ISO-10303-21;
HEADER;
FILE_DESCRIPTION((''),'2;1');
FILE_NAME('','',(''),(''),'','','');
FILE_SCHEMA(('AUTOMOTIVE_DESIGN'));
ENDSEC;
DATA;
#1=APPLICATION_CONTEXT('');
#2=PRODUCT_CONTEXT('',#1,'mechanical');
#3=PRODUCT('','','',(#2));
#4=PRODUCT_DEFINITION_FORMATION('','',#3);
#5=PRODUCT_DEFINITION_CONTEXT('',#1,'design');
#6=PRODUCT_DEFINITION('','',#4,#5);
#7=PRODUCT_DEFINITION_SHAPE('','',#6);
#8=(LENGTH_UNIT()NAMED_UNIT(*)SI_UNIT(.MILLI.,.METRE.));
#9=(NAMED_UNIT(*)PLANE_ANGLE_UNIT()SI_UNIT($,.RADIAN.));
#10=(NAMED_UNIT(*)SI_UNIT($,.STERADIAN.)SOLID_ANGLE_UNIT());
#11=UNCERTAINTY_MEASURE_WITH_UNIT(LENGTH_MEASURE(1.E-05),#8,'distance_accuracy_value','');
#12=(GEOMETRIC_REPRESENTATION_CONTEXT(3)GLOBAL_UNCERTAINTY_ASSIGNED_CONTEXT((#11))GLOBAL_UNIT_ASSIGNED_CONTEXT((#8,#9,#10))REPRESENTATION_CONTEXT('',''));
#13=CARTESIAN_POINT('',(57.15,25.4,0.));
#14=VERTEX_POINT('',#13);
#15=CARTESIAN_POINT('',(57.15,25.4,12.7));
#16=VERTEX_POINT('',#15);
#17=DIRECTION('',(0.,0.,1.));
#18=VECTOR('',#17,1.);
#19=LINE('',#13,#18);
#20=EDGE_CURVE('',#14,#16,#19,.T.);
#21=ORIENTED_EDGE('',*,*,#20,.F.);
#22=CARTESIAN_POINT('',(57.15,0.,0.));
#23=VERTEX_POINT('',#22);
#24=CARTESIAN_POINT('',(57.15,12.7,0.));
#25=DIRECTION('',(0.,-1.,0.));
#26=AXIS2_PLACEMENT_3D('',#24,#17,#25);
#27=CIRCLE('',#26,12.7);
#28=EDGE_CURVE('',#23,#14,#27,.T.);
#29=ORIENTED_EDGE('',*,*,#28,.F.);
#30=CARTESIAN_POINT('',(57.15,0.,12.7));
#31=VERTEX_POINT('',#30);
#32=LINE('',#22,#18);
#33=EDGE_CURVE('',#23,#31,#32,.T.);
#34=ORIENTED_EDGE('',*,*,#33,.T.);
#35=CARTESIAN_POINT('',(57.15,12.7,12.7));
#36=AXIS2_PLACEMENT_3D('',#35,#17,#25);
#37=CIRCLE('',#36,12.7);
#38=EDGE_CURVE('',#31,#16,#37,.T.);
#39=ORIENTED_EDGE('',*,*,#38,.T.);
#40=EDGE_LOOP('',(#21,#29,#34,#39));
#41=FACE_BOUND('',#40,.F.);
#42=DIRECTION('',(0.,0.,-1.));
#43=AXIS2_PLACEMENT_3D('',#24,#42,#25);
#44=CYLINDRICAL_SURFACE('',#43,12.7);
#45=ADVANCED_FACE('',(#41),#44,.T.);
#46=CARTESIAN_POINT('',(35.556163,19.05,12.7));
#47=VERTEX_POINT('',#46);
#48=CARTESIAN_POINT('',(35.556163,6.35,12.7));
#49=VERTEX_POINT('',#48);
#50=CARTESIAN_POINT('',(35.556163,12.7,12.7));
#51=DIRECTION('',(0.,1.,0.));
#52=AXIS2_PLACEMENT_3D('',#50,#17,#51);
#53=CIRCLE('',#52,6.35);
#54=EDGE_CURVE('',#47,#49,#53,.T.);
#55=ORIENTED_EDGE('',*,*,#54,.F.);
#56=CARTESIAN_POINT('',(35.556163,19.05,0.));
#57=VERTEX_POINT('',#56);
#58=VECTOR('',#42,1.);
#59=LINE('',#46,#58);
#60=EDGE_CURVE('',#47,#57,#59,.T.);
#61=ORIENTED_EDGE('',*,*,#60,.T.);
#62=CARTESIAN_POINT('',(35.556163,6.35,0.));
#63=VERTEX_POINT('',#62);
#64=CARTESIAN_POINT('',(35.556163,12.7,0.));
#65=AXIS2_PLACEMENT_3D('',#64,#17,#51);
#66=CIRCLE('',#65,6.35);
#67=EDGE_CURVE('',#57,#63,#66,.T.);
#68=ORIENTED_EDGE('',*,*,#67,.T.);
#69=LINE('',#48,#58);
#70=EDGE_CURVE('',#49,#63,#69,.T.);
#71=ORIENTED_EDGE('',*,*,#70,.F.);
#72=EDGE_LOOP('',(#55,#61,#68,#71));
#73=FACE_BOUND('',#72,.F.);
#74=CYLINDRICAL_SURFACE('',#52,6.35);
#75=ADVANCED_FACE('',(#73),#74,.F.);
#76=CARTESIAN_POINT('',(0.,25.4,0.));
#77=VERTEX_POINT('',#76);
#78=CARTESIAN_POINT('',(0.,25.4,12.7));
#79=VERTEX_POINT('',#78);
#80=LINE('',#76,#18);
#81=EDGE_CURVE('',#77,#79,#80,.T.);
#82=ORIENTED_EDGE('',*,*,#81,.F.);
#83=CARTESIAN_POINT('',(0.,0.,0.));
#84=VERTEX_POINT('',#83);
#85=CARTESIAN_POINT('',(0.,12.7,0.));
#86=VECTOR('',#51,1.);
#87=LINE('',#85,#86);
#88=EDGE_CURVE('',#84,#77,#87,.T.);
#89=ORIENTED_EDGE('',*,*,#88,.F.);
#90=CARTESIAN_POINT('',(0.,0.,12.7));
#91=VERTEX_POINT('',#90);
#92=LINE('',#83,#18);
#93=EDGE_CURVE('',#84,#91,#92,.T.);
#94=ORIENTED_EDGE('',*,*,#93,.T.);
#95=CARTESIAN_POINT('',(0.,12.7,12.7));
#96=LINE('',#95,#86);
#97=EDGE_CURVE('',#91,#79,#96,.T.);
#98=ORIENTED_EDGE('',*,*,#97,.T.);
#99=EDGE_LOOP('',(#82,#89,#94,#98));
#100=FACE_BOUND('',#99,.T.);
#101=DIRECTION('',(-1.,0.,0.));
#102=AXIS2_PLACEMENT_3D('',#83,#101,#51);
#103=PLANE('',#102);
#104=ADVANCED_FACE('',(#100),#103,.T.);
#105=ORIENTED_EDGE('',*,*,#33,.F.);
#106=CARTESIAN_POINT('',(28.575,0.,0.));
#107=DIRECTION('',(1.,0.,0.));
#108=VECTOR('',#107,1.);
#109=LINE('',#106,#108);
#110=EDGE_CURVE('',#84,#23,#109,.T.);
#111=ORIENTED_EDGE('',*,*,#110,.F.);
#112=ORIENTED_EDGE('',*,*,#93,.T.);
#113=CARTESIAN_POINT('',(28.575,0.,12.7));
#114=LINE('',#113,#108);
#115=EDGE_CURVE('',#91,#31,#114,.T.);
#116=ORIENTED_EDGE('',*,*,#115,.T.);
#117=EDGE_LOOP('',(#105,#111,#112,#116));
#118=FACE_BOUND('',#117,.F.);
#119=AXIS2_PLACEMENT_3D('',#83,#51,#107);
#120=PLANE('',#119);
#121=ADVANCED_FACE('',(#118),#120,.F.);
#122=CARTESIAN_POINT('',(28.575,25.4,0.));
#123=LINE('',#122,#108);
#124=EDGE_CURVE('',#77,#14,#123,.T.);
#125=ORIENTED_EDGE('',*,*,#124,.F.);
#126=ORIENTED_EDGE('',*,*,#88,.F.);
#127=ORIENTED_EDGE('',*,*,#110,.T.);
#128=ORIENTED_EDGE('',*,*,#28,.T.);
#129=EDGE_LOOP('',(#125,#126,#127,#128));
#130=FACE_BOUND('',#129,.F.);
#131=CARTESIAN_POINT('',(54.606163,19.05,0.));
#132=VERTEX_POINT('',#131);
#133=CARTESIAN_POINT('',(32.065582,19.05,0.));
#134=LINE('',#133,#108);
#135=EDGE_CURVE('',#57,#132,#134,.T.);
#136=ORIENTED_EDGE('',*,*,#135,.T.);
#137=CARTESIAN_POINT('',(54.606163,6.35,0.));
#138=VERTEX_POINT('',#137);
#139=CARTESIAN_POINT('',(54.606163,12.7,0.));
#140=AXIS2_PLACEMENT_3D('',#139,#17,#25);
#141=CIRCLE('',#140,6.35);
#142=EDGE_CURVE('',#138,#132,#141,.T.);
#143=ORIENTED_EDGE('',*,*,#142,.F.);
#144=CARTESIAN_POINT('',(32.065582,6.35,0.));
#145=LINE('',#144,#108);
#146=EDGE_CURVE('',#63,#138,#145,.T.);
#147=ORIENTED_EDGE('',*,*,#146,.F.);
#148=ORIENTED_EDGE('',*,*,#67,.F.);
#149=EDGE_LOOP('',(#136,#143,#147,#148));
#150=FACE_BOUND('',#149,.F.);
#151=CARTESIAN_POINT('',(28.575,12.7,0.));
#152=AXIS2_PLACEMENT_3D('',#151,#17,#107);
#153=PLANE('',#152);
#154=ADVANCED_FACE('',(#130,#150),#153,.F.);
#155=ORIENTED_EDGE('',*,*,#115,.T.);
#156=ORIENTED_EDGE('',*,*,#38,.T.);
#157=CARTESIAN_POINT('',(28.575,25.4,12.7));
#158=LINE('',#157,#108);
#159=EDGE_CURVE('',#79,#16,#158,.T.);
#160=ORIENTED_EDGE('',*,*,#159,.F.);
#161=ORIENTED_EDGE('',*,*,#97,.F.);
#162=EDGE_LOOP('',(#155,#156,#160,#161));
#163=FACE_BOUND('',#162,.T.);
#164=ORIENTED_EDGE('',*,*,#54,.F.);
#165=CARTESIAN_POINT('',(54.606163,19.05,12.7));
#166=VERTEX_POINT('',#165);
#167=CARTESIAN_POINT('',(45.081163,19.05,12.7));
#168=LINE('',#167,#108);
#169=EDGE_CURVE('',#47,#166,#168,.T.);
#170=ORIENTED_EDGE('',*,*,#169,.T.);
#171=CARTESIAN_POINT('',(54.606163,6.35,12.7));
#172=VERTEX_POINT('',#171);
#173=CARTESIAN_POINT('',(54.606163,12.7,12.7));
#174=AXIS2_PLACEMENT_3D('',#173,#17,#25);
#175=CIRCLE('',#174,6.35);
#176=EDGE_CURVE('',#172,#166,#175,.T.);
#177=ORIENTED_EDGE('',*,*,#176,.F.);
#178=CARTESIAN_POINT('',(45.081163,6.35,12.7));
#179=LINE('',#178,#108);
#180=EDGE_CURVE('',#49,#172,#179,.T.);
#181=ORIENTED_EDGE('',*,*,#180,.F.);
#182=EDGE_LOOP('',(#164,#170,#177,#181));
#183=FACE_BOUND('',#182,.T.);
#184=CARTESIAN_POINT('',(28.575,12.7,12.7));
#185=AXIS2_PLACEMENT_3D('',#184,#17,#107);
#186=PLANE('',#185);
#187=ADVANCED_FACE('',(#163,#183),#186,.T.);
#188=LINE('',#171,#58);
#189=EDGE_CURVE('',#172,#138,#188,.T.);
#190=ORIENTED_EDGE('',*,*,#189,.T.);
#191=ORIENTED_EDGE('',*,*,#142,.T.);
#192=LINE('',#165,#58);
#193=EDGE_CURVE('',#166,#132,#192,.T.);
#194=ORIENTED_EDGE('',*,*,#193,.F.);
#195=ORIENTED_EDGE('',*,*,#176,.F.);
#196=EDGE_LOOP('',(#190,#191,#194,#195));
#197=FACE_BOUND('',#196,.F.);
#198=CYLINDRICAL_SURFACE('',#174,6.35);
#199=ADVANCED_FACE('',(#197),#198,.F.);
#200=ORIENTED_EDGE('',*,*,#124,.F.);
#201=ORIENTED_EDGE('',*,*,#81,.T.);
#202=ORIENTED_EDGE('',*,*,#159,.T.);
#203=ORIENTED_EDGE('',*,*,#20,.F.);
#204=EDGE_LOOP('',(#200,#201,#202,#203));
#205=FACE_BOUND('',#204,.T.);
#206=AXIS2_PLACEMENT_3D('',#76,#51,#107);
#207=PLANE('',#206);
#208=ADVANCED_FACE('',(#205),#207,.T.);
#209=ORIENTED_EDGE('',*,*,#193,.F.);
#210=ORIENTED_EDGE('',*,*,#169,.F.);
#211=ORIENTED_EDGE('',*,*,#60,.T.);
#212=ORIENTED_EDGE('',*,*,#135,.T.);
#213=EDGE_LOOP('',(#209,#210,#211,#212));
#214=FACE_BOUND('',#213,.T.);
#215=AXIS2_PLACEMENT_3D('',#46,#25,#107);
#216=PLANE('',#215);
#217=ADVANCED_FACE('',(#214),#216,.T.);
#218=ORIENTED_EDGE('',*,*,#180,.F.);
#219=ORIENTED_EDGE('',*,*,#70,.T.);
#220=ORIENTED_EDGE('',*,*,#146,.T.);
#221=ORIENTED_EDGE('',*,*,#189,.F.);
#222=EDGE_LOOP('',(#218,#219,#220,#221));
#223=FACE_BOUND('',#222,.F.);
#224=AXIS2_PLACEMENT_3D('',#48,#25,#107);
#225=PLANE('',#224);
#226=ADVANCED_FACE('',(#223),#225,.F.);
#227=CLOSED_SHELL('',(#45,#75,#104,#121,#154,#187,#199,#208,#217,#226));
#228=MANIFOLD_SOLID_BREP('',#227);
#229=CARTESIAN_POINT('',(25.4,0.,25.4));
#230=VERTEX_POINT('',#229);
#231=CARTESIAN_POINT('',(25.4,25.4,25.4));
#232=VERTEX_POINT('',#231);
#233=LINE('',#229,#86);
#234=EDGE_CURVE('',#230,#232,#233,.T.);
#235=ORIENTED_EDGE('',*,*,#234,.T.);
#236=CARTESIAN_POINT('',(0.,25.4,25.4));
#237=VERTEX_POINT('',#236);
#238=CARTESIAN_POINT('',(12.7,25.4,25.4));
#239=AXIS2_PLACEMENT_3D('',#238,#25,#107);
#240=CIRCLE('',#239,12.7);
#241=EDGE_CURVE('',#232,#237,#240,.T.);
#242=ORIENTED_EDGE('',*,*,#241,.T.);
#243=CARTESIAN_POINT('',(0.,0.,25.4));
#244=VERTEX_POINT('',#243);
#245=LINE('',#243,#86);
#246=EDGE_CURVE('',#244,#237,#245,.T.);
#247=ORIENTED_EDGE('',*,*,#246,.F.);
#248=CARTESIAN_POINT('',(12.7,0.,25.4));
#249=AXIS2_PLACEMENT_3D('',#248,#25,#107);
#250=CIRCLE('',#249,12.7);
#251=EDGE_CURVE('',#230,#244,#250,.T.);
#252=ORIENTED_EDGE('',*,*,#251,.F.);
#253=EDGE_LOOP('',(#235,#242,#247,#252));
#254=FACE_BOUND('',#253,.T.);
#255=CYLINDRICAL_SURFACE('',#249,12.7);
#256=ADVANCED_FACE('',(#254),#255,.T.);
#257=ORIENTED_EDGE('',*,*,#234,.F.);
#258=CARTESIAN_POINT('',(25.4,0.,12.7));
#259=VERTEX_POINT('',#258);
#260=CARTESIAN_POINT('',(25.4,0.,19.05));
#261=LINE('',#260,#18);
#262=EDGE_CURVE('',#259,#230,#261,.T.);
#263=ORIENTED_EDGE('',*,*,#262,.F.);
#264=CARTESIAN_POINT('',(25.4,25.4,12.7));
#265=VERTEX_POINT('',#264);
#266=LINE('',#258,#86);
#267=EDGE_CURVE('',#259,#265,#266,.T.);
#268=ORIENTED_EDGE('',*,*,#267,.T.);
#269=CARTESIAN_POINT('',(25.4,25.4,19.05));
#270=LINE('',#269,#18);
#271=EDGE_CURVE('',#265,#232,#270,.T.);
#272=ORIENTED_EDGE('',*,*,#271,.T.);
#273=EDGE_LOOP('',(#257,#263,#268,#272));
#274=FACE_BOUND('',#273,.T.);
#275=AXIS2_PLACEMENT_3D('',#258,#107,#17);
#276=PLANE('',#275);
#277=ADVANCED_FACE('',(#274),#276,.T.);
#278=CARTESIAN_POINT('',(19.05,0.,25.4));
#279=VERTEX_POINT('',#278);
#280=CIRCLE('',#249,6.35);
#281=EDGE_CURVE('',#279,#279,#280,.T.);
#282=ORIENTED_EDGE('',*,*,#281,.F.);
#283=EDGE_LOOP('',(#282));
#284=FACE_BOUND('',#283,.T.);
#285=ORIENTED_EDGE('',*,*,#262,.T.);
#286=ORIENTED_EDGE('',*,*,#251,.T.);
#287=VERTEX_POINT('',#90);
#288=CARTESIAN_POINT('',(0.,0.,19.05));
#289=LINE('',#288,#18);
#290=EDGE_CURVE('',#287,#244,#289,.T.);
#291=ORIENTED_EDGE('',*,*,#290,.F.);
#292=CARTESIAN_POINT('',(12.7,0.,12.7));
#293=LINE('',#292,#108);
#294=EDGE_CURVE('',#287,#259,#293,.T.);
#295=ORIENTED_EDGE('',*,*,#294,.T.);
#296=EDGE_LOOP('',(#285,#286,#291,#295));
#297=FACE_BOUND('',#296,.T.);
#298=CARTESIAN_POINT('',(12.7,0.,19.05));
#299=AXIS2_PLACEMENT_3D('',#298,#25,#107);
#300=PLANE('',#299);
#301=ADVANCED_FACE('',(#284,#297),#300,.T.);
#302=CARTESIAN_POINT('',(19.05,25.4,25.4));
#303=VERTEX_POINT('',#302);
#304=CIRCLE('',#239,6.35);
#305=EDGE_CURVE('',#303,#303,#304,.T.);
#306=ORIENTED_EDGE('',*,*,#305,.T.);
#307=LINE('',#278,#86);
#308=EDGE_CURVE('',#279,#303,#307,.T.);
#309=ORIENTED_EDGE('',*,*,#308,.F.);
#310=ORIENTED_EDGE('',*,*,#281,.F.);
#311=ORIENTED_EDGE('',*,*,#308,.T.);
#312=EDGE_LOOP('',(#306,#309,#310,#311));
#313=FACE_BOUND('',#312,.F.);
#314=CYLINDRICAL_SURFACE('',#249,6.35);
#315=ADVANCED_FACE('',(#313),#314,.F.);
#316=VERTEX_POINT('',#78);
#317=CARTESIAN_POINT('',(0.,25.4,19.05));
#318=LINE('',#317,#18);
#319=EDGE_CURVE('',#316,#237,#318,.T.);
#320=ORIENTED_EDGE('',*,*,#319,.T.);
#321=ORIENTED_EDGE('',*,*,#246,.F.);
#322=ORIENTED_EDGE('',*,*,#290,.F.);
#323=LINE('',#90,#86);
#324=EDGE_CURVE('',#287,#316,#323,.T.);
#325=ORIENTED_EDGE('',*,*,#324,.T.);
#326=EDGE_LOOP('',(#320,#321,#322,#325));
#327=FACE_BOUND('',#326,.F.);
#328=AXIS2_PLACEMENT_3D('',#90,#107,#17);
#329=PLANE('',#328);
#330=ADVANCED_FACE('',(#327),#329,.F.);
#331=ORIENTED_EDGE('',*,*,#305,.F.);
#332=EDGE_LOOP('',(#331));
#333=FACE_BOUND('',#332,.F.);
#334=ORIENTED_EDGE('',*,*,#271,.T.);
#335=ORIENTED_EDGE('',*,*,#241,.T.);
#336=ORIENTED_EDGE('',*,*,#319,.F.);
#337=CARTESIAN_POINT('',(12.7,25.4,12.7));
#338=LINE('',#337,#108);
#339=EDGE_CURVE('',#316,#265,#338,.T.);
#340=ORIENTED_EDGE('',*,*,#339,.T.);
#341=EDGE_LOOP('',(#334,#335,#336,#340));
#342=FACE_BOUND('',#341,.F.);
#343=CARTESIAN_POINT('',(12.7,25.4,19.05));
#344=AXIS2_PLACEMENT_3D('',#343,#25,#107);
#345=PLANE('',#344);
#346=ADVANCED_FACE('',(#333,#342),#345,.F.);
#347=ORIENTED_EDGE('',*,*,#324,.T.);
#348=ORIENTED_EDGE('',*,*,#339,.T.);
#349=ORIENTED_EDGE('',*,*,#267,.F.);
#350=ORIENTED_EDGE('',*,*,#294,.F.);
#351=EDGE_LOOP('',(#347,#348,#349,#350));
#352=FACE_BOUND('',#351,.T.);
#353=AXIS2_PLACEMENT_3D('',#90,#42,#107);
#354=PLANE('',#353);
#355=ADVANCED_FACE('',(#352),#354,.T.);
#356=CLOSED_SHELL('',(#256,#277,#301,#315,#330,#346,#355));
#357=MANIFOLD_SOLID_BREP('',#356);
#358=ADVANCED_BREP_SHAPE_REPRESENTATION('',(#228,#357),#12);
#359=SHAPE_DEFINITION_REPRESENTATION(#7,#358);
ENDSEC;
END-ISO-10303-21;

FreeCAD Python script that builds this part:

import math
import FreeCAD as App
import Part
import Sketcher

V = App.Vector
Q = App.Units.Quantity


def add_polygon(sketch, points):
    """Adds a closed chain of lines whose ends are joined by coincident constraints."""
    first, n = sketch.GeometryCount, len(points)
    for a, b in zip(points, points[1:] + points[:1]):
        sketch.addGeometry(Part.LineSegment(App.Vector(*a, 0), App.Vector(*b, 0)), False)
    for i in range(n):
        sketch.addConstraint(Sketcher.Constraint("Coincident", first + i, 2, first + (i + 1) % n, 1))

doc = App.newDocument("Part")
body = doc.addObject("PartDesign::Body", "Body")

# Sketch on XY plane
sketch1 = doc.addObject("Sketcher::SketchObject", "Sketch")
body.addObject(sketch1)
sketch1.AttachmentSupport = (doc.XY_Plane, [""])
sketch1.MapMode = "FlatFace"
add_polygon(sketch1, [(0, 25), (0, 0), (57, 0), (57, 25)])  # lines 0-3
sketch1.addConstraint(Sketcher.Constraint("Vertical", 0))
sketch1.addConstraint(Sketcher.Constraint("Horizontal", 1))
sketch1.addConstraint(Sketcher.Constraint("Vertical", 2))
sketch1.addConstraint(Sketcher.Constraint("Horizontal", 3))
sketch1.addConstraint(Sketcher.Constraint("Coincident", 0, 2, -1, 1))
sketch1.addConstraint(Sketcher.Constraint("DistanceY", 0, 2, 0, 1, Q("1 in")))
sketch1.addConstraint(Sketcher.Constraint("DistanceX", 1, 1, 1, 2, Q("2.25 in")))
pad1 = doc.addObject("PartDesign::Pad", "Pad")
body.addObject(pad1)
pad1.Profile = sketch1
pad1.Length = Q("0.5 in")

# Sketch on XY plane
sketch2 = doc.addObject("Sketcher::SketchObject", "Sketch001")
body.addObject(sketch2)
sketch2.AttachmentSupport = (doc.XY_Plane, [""])
sketch2.MapMode = "FlatFace"
sketch2.addGeometry(Part.LineSegment(V(0, 25, 0), V(0, 0, 0)), False)
sketch2.addGeometry(Part.LineSegment(V(0, 0, 0), V(57, 0, 0)), False)
sketch2.addGeometry(Part.ArcOfCircle(Part.Circle(V(57, 13, 0), V(0, 0, 1), 13), math.radians(-90), math.radians(90)), False)
sketch2.addGeometry(Part.LineSegment(V(57, 25, 0), V(0, 25, 0)), False)
sketch2.addConstraint(Sketcher.Constraint("Coincident", 0, 2, 1, 1))
sketch2.addConstraint(Sketcher.Constraint("Tangent", 1, 2, 2, 1))
sketch2.addConstraint(Sketcher.Constraint("Tangent", 2, 2, 3, 1))
sketch2.addConstraint(Sketcher.Constraint("Coincident", 3, 2, 0, 1))
sketch2.addConstraint(Sketcher.Constraint("Vertical", 0))
sketch2.addConstraint(Sketcher.Constraint("Horizontal", 1))
sketch2.addConstraint(Sketcher.Constraint("Horizontal", 3))
sketch2.addConstraint(Sketcher.Constraint("Coincident", 0, 2, -1, 1))
sketch2.addConstraint(Sketcher.Constraint("Radius", 2, Q("0.5 in")))
sketch2.addConstraint(Sketcher.Constraint("DistanceX", 1, 1, 1, 2, Q("2.25 in")))
pad2 = doc.addObject("PartDesign::Pad", "Pad001")
body.addObject(pad2)
pad2.Profile = sketch2
pad2.Length = Q("0.5 in")

# Sketch on XY plane
sketch3 = doc.addObject("Sketcher::SketchObject", "Sketch002")
body.addObject(sketch3)
sketch3.AttachmentSupport = (doc.XY_Plane, [""])
sketch3.MapMode = "FlatFace"
sketch3.AttachmentOffset = App.Placement(V(0, 0, 0.5 * 25.4), App.Rotation())
sketch3.addGeometry(Part.ArcOfCircle(Part.Circle(V(55, 13, 0), V(0, 0, 1), 6), math.radians(-90), math.radians(90)), False)
sketch3.addGeometry(Part.LineSegment(V(55, 19, 0), V(36, 19, 0)), False)
sketch3.addGeometry(Part.ArcOfCircle(Part.Circle(V(36, 13, 0), V(0, 0, 1), 6), math.radians(90), math.radians(270)), False)
sketch3.addGeometry(Part.LineSegment(V(36, 6, 0), V(55, 6, 0)), False)
sketch3.addConstraint(Sketcher.Constraint("Tangent", 0, 2, 1, 1))
sketch3.addConstraint(Sketcher.Constraint("Tangent", 1, 2, 2, 1))
sketch3.addConstraint(Sketcher.Constraint("Tangent", 2, 2, 3, 1))
sketch3.addConstraint(Sketcher.Constraint("Tangent", 3, 2, 0, 1))
sketch3.addConstraint(Sketcher.Constraint("Horizontal", 1))
sketch3.addConstraint(Sketcher.Constraint("Horizontal", 3))
sketch3.addConstraint(Sketcher.Constraint("Radius", 0, Q("0.25 in")))
sketch3.addConstraint(Sketcher.Constraint("DistanceX", 1, 2, 1, 1, Q("0.75 in")))
sketch3.addConstraint(Sketcher.Constraint("DistanceY", -1, 1, 0, 3, Q("0.5 in")))
sketch3.addConstraint(Sketcher.Constraint("DistanceX", -1, 1, 0, 3, 54.606163))
pocket1 = doc.addObject("PartDesign::Pocket", "Pocket")
body.addObject(pocket1)
pocket1.Profile = sketch3
pocket1.Length = Q("1 in")
body2 = doc.addObject("PartDesign::Body", "Body001")

# Sketch on XZ plane
sketch4 = doc.addObject("Sketcher::SketchObject", "Sketch003")
body2.addObject(sketch4)
sketch4.AttachmentSupport = (doc.getObject("XZ_Plane001"), [""])
sketch4.MapMode = "FlatFace"
sketch4.addGeometry(Part.LineSegment(V(0, 25, 0), V(0, 13, 0)), False)
sketch4.addGeometry(Part.LineSegment(V(0, 13, 0), V(25, 13, 0)), False)
sketch4.addGeometry(Part.LineSegment(V(25, 13, 0), V(25, 25, 0)), False)
sketch4.addGeometry(Part.ArcOfCircle(Part.Circle(V(13, 25, 0), V(0, 0, 1), 13), math.radians(0), math.radians(180)), False)
sketch4.addConstraint(Sketcher.Constraint("Coincident", 0, 2, 1, 1))
sketch4.addConstraint(Sketcher.Constraint("Coincident", 1, 2, 2, 1))
sketch4.addConstraint(Sketcher.Constraint("Tangent", 2, 2, 3, 1))
sketch4.addConstraint(Sketcher.Constraint("Tangent", 3, 2, 0, 1))
sketch4.addConstraint(Sketcher.Constraint("Vertical", 0))
sketch4.addConstraint(Sketcher.Constraint("Horizontal", 1))
sketch4.addConstraint(Sketcher.Constraint("Vertical", 2))
sketch4.addConstraint(Sketcher.Constraint("PointOnObject", 0, 2, -2))
sketch4.addConstraint(Sketcher.Constraint("Radius", 3, Q("0.5 in")))
sketch4.addConstraint(Sketcher.Constraint("DistanceY", 0, 2, 0, 1, Q("0.5 in")))
sketch4.addConstraint(Sketcher.Constraint("DistanceY", -1, 1, 3, 3, Q("1 in")))
pad3 = doc.addObject("PartDesign::Pad", "Pad002")
body2.addObject(pad3)
pad3.Profile = sketch4
pad3.Length = Q("1 in")
pad3.Reversed = True

# Sketch on XZ plane
sketch5 = doc.addObject("Sketcher::SketchObject", "Sketch004")
body2.addObject(sketch5)
sketch5.AttachmentSupport = (doc.getObject("XZ_Plane001"), [""])
sketch5.MapMode = "FlatFace"
sketch5.addGeometry(Part.Circle(V(13, 25, 0), V(0, 0, 1), 6), False)
sketch5.addConstraint(Sketcher.Constraint("Diameter", 0, Q("0.5 in")))
sketch5.addConstraint(Sketcher.Constraint("DistanceY", -1, 1, 0, 3, Q("1 in")))
sketch5.addConstraint(Sketcher.Constraint("DistanceX", -1, 1, 0, 3, Q("0.5 in")))
pocket2 = doc.addObject("PartDesign::Pocket", "Pocket001")
body2.addObject(pocket2)
pocket2.Profile = sketch5
pocket2.Length = Q("1 in")

doc.recompute()
